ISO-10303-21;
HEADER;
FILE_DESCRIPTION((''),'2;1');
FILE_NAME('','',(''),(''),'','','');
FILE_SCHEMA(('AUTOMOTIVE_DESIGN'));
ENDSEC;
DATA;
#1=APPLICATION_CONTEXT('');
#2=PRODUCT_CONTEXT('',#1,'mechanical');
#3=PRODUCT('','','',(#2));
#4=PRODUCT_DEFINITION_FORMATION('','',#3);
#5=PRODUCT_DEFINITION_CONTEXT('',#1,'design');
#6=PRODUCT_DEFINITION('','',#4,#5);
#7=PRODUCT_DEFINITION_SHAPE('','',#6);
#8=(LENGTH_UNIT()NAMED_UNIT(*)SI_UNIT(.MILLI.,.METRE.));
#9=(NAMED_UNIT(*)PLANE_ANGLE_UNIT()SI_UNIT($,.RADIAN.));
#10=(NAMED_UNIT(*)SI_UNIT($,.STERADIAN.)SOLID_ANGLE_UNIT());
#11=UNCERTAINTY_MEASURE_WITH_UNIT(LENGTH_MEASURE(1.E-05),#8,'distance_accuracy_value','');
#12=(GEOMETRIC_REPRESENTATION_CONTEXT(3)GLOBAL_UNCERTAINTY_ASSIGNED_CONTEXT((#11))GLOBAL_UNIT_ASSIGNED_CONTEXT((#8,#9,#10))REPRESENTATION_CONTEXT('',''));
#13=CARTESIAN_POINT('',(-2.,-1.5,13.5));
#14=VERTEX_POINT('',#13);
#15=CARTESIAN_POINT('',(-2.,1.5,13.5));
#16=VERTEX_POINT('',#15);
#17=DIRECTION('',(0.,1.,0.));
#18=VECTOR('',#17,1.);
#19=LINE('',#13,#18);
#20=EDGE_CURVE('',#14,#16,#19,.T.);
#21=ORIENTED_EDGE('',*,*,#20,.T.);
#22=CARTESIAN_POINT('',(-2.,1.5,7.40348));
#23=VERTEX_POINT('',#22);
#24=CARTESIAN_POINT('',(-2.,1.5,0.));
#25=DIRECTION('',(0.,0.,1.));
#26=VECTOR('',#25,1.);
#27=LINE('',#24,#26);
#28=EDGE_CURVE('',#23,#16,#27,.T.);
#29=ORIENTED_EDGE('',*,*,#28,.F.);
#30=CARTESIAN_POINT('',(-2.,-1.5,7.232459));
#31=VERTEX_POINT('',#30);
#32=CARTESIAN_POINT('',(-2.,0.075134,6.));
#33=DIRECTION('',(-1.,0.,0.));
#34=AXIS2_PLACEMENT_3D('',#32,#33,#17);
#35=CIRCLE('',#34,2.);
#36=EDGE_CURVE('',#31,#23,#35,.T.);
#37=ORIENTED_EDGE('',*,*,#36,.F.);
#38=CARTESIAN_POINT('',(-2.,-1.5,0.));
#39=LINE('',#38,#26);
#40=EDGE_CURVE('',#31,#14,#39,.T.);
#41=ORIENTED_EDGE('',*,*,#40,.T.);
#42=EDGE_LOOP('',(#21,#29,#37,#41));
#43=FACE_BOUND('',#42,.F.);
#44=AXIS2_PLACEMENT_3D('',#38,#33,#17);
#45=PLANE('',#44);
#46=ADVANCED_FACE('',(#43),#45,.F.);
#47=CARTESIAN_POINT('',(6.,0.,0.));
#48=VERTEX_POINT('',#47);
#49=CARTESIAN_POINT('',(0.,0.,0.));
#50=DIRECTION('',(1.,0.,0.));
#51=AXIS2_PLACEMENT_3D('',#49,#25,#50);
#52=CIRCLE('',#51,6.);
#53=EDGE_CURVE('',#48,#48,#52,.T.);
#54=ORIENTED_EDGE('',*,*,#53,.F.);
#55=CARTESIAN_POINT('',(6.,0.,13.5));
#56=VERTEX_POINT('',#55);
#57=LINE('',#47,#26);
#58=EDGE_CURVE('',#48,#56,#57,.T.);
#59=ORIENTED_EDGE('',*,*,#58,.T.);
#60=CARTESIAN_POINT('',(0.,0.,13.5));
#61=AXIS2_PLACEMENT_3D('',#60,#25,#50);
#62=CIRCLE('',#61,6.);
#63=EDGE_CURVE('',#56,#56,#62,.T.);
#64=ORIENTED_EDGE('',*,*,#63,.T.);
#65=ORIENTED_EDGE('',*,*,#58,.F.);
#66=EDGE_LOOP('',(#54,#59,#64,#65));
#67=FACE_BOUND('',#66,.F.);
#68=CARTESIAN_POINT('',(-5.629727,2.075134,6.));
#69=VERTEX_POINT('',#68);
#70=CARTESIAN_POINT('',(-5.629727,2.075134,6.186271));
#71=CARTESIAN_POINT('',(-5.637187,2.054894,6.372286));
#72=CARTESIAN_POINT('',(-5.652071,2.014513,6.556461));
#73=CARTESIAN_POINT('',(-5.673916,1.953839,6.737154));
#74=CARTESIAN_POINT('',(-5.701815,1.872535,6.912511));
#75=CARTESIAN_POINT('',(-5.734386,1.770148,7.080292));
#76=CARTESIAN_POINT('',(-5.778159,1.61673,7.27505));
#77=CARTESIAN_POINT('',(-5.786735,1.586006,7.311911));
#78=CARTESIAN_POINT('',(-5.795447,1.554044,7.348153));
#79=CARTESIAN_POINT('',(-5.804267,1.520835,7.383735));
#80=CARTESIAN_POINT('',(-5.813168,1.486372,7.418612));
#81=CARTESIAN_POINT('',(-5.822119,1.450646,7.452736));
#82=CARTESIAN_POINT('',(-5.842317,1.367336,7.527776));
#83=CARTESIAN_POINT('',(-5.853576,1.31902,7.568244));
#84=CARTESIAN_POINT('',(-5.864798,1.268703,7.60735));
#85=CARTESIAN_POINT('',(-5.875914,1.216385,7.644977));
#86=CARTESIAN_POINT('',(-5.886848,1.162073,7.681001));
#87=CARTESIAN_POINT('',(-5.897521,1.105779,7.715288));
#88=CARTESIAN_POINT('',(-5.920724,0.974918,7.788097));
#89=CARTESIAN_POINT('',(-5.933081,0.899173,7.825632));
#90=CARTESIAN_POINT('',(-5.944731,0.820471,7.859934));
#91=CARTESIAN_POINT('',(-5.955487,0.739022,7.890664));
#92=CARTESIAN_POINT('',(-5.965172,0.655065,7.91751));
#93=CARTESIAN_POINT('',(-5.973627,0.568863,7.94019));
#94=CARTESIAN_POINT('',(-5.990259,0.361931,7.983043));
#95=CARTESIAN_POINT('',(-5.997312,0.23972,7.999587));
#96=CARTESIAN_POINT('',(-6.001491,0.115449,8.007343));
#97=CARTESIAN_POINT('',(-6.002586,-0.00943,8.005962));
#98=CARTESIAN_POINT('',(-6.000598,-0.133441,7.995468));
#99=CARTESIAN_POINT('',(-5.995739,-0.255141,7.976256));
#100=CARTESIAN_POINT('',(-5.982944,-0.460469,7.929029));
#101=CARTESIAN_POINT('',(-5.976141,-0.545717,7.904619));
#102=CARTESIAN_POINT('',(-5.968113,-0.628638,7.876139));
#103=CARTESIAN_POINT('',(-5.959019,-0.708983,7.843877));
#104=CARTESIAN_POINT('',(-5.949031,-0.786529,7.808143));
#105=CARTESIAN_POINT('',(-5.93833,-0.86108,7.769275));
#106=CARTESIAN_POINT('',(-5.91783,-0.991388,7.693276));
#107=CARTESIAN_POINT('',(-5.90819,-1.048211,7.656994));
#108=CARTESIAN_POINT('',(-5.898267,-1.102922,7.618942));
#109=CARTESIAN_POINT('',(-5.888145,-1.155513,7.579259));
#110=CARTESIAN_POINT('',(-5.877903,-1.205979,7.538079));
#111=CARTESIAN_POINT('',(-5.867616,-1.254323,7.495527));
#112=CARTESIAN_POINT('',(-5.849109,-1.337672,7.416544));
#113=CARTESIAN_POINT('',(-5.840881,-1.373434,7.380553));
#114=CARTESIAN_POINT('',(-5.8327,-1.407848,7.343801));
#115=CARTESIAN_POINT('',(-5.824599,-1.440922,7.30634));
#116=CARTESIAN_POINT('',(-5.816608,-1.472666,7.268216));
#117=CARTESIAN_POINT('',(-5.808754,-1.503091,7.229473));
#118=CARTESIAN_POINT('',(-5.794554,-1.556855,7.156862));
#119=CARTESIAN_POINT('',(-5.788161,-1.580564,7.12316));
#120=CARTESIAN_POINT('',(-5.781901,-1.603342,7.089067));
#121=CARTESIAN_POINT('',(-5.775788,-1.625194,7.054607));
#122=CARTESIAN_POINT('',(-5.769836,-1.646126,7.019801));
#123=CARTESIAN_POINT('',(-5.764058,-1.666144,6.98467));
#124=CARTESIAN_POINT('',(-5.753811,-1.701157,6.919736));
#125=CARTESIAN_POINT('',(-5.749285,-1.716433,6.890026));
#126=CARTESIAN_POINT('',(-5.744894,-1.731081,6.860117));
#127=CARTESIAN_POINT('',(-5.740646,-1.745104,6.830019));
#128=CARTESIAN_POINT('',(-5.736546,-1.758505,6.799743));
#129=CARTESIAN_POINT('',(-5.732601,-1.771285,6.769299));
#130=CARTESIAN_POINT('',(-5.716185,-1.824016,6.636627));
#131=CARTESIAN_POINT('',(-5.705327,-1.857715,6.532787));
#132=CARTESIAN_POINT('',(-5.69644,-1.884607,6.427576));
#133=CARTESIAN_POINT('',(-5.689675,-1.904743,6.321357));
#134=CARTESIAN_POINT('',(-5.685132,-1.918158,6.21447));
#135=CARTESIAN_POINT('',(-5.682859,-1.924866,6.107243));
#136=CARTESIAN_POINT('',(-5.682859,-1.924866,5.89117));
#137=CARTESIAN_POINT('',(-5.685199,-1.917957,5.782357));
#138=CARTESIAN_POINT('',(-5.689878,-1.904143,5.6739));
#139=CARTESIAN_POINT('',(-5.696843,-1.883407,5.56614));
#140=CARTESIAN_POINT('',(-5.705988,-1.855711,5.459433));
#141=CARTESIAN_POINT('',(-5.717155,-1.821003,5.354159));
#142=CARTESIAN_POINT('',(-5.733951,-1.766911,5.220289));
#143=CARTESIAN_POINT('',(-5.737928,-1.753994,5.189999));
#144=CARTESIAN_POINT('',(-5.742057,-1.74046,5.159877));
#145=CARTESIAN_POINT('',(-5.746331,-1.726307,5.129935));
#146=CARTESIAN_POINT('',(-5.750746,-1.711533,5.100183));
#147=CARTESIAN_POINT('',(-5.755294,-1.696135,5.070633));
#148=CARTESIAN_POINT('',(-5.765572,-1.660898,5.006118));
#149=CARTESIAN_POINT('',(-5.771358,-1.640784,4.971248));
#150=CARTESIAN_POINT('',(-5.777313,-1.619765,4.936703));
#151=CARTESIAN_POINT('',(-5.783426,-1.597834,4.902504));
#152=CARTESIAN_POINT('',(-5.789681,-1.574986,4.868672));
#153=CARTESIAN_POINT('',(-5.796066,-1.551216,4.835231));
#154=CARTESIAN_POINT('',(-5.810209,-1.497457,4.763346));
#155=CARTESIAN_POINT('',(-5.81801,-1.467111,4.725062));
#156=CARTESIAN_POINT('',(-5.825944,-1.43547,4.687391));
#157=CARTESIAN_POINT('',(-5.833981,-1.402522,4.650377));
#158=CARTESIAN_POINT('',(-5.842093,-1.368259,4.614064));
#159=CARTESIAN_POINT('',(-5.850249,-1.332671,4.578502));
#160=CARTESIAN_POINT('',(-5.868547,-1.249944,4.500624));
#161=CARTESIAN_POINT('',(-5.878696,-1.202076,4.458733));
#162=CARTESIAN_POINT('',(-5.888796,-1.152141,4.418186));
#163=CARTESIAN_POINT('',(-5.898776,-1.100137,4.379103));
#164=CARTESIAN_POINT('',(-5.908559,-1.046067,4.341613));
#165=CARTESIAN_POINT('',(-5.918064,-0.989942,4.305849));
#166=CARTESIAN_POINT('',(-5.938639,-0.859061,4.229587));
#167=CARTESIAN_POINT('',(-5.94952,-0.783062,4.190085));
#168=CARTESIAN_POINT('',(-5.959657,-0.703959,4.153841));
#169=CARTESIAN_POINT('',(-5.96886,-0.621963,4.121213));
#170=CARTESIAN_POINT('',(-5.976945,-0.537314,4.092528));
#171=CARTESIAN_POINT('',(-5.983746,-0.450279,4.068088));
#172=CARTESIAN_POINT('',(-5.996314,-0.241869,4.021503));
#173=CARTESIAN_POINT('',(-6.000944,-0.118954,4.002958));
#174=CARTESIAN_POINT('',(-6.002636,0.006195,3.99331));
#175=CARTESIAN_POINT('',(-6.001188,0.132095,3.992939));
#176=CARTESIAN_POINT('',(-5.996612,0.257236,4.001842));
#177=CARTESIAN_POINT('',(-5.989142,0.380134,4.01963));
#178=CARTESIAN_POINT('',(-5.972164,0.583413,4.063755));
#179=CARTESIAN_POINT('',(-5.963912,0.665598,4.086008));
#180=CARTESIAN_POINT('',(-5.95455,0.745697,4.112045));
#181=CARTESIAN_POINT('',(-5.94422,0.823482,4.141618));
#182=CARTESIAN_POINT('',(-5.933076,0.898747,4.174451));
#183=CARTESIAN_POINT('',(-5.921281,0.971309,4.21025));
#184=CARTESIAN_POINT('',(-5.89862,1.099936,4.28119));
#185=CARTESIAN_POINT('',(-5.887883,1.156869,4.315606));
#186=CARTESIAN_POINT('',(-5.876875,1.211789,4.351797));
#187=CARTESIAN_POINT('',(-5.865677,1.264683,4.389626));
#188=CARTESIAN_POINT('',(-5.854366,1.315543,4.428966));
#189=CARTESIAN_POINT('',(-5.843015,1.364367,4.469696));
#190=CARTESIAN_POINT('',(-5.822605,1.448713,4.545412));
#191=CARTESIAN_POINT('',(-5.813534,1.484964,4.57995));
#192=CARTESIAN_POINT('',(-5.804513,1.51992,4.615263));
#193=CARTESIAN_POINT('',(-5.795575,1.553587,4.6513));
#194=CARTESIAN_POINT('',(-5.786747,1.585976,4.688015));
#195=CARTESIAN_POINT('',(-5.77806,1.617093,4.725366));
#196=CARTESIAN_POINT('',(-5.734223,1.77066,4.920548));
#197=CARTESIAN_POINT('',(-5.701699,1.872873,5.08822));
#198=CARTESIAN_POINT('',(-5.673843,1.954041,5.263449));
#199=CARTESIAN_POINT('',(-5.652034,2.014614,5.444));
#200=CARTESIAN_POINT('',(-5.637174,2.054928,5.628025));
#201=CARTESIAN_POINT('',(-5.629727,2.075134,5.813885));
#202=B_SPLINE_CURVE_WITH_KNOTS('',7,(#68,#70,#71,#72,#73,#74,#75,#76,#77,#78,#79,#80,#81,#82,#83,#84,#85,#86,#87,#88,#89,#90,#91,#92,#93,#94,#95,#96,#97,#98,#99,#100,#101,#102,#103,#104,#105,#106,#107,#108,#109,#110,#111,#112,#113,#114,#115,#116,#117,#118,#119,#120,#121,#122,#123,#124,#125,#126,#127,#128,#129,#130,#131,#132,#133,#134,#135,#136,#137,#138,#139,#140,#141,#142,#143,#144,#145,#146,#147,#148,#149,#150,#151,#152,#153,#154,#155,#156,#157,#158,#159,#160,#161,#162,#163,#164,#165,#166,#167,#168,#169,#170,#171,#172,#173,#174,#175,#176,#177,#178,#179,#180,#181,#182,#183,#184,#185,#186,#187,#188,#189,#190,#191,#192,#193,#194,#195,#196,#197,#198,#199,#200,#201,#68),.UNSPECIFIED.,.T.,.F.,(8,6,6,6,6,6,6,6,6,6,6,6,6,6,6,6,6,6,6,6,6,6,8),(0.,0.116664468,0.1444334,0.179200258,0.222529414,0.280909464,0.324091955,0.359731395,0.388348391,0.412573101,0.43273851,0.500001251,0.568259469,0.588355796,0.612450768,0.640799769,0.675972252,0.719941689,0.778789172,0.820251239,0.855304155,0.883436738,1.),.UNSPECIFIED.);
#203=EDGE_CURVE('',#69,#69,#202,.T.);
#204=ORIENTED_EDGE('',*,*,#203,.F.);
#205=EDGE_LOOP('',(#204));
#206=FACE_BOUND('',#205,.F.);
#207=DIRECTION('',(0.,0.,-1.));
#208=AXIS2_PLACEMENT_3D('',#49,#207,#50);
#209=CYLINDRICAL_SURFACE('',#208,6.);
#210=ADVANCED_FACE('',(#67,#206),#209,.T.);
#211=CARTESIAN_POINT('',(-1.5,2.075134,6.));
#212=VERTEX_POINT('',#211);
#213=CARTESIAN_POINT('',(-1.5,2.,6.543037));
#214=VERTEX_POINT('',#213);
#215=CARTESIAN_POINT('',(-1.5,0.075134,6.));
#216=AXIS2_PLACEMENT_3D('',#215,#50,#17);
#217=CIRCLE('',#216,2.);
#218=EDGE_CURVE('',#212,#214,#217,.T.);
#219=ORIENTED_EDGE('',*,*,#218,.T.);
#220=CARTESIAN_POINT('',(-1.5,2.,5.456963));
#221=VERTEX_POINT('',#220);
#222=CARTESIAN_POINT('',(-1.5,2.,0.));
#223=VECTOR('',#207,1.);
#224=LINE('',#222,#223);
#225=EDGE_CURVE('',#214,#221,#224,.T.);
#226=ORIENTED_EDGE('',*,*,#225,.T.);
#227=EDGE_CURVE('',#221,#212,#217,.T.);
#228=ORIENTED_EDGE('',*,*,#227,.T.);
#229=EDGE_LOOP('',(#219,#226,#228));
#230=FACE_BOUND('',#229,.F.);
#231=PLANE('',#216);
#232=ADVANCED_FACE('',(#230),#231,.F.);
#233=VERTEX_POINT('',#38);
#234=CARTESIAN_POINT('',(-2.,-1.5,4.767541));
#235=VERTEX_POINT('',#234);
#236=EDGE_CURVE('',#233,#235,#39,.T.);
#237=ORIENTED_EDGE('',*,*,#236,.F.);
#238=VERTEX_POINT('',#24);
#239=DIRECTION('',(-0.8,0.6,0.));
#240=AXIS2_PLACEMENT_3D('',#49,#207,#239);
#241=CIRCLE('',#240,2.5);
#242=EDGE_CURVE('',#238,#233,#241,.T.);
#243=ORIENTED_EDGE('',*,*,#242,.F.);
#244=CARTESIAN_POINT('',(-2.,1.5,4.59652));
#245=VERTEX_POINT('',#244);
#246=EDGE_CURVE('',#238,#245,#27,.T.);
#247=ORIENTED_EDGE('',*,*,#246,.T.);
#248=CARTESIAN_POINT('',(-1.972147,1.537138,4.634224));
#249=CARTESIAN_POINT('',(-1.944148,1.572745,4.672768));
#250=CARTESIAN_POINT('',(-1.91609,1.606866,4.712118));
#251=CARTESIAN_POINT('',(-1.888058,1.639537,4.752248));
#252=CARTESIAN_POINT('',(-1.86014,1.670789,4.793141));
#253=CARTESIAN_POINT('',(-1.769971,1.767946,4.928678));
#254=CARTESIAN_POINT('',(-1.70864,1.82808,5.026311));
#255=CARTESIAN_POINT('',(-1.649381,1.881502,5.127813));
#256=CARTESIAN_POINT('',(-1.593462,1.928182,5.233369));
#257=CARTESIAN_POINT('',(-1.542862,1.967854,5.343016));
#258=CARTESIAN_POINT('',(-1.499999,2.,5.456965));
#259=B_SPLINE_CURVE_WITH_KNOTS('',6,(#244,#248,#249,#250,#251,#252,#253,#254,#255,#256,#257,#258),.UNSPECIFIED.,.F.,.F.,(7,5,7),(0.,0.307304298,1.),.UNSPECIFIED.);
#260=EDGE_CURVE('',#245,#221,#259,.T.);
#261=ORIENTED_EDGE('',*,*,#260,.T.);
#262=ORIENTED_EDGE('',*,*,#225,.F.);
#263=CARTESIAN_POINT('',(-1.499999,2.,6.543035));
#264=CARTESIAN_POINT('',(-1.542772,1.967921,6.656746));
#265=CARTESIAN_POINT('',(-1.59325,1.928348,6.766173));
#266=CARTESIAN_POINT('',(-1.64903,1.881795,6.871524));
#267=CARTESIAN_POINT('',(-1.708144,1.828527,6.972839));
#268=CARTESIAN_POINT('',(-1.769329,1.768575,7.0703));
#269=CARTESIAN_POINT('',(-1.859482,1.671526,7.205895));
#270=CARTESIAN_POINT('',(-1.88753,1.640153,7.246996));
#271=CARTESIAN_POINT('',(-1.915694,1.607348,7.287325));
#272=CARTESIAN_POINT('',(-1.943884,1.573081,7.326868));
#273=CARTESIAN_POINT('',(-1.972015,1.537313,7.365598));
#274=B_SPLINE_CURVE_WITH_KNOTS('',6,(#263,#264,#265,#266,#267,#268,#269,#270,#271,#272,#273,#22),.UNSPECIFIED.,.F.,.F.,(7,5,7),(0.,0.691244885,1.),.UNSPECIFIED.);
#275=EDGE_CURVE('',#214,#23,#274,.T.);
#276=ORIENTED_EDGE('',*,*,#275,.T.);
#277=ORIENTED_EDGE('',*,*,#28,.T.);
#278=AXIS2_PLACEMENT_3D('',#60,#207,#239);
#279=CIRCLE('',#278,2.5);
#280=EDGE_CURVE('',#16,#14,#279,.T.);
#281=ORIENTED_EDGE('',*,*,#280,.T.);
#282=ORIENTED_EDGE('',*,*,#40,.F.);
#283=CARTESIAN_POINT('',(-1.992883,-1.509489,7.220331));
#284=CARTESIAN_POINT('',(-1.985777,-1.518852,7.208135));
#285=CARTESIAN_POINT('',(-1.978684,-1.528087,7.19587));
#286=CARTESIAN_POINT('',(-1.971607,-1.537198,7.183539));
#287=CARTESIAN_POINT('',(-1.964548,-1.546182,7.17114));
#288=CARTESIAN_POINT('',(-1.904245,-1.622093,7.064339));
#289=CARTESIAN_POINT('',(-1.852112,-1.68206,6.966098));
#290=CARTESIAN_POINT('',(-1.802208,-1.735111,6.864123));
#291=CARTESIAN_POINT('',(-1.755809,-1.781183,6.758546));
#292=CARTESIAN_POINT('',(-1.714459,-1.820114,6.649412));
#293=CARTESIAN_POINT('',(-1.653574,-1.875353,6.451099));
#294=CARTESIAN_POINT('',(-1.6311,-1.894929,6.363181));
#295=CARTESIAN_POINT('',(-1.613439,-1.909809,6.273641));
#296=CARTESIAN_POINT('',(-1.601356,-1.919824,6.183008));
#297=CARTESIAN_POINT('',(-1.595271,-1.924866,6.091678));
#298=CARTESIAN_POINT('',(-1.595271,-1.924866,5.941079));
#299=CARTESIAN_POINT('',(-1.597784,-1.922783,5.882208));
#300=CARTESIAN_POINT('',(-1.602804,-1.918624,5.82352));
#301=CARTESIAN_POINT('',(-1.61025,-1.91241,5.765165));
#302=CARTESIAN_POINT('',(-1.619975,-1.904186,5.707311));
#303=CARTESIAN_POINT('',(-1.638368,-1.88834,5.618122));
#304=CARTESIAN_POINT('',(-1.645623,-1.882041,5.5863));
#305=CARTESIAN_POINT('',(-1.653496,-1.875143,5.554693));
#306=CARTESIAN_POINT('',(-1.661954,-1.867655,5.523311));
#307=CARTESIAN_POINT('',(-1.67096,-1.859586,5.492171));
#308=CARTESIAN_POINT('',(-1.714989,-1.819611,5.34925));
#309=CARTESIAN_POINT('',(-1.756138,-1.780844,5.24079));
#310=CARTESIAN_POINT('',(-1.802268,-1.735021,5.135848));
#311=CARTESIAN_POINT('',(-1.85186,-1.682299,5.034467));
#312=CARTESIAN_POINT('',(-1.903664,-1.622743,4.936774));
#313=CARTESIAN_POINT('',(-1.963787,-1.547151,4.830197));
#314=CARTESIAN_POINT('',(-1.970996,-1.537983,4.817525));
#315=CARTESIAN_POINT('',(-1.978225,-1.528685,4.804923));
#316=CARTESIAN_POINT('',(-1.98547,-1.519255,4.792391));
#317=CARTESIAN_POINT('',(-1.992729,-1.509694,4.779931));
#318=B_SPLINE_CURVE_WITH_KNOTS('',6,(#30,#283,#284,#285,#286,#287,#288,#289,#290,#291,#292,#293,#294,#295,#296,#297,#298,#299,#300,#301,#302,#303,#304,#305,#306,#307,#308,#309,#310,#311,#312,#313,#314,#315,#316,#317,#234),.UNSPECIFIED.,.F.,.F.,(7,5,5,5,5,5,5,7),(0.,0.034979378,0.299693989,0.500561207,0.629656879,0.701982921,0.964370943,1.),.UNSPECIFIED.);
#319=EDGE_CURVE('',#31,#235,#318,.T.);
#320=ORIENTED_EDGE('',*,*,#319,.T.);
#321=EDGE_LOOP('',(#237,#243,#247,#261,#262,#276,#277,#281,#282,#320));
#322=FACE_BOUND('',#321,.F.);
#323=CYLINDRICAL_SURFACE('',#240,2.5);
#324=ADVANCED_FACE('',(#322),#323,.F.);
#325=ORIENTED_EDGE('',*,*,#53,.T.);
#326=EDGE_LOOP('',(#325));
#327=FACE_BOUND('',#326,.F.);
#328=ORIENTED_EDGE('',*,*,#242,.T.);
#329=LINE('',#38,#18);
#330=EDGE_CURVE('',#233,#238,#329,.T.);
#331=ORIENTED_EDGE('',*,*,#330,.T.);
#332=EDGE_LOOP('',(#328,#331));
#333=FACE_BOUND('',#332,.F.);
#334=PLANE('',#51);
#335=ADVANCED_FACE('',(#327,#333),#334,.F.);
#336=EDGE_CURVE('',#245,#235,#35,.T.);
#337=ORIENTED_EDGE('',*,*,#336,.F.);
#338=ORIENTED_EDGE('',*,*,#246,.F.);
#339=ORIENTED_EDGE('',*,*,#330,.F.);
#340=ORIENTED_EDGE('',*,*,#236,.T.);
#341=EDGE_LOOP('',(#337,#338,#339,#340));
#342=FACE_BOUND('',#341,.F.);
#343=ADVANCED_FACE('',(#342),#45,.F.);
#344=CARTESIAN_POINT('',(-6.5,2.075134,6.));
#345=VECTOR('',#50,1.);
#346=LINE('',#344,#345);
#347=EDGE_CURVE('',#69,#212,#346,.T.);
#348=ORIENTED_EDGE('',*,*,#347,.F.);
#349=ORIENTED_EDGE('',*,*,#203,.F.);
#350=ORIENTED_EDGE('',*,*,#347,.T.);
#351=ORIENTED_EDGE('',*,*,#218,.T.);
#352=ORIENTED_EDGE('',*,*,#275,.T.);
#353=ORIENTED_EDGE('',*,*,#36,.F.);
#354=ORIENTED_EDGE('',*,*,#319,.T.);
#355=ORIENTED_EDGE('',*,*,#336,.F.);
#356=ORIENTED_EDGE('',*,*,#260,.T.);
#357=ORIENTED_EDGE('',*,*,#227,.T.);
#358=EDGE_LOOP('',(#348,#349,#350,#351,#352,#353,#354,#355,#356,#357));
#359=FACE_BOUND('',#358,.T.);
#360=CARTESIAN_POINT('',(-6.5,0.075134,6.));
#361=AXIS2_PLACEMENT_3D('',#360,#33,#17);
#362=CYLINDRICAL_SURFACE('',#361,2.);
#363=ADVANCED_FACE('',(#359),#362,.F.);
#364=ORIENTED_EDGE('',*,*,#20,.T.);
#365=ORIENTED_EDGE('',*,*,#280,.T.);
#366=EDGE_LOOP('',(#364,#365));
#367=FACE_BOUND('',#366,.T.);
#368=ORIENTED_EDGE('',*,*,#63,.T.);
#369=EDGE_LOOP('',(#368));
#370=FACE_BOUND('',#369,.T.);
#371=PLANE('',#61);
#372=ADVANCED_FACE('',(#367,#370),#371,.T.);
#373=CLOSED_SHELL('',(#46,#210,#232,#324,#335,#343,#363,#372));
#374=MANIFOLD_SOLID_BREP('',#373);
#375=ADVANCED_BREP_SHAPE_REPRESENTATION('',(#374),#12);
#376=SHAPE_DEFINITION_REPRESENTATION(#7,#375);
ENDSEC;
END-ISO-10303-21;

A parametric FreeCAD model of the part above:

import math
import FreeCAD as App
import Part
import Sketcher
from FreeCAD import Vector

doc = App.newDocument("Part")
body = doc.addObject("PartDesign::Body", "Body")

# Sketch on XY plane
sketch1 = doc.addObject("Sketcher::SketchObject", "Sketch")
body.addObject(sketch1)
sketch1.AttachmentSupport = (doc.XY_Plane, [""])
sketch1.MapMode = "FlatFace"
sketch1.addGeometry(Part.Circle(Vector(0, 0, 0), Vector(0, 0, 1), 6), False)
sketch1.addGeometry(Part.LineSegment(Vector(-2, -1.5, 0), Vector(-2, 1.5, 0)), False)
sketch1.addGeometry(Part.ArcOfCircle(Part.Circle(Vector(0, 0, 0), Vector(0, 0, 1), 2.5), math.radians(-143), math.radians(143)), False)
sketch1.addConstraint(Sketcher.Constraint("Coincident", 1, 1, 2, 1))
sketch1.addConstraint(Sketcher.Constraint("Coincident", 2, 2, 1, 2))
sketch1.addConstraint(Sketcher.Constraint("Vertical", 1))
sketch1.addConstraint(Sketcher.Constraint("Coincident", 0, 3, -1, 1))
sketch1.addConstraint(Sketcher.Constraint("Coincident", 2, 3, -1, 1))
sketch1.addConstraint(Sketcher.Constraint("Diameter", 0, 12.0))
sketch1.addConstraint(Sketcher.Constraint("Radius", 2, 2.5))
sketch1.addConstraint(Sketcher.Constraint("DistanceY", 1, 1, 1, 2, 3.0))
pad1 = doc.addObject("PartDesign::Pad", "Pad")
body.addObject(pad1)
pad1.Profile = sketch1
pad1.Length = 13.5

# Sketch on YZ plane
sketch2 = doc.addObject("Sketcher::SketchObject", "Sketch001")
body.addObject(sketch2)
sketch2.AttachmentSupport = (doc.YZ_Plane, [""])
sketch2.MapMode = "FlatFace"
sketch2.AttachmentOffset = App.Placement(Vector(0, 0, -6.5), App.Rotation())
sketch2.addGeometry(Part.Circle(Vector(0.1, 6, 0), Vector(0, 0, 1), 2), False)
sketch2.addConstraint(Sketcher.Constraint("Diameter", 0, 4.0))
sketch2.addConstraint(Sketcher.Constraint("DistanceY", -1, 1, 0, 3, 6.0))
sketch2.addConstraint(Sketcher.Constraint("DistanceX", -1, 1, 0, 3, 0.075134))
pocket1 = doc.addObject("PartDesign::Pocket", "Pocket")
body.addObject(pocket1)
pocket1.Profile = sketch2
pocket1.Length = 5
pocket1.Reversed = True

doc.recompute()
